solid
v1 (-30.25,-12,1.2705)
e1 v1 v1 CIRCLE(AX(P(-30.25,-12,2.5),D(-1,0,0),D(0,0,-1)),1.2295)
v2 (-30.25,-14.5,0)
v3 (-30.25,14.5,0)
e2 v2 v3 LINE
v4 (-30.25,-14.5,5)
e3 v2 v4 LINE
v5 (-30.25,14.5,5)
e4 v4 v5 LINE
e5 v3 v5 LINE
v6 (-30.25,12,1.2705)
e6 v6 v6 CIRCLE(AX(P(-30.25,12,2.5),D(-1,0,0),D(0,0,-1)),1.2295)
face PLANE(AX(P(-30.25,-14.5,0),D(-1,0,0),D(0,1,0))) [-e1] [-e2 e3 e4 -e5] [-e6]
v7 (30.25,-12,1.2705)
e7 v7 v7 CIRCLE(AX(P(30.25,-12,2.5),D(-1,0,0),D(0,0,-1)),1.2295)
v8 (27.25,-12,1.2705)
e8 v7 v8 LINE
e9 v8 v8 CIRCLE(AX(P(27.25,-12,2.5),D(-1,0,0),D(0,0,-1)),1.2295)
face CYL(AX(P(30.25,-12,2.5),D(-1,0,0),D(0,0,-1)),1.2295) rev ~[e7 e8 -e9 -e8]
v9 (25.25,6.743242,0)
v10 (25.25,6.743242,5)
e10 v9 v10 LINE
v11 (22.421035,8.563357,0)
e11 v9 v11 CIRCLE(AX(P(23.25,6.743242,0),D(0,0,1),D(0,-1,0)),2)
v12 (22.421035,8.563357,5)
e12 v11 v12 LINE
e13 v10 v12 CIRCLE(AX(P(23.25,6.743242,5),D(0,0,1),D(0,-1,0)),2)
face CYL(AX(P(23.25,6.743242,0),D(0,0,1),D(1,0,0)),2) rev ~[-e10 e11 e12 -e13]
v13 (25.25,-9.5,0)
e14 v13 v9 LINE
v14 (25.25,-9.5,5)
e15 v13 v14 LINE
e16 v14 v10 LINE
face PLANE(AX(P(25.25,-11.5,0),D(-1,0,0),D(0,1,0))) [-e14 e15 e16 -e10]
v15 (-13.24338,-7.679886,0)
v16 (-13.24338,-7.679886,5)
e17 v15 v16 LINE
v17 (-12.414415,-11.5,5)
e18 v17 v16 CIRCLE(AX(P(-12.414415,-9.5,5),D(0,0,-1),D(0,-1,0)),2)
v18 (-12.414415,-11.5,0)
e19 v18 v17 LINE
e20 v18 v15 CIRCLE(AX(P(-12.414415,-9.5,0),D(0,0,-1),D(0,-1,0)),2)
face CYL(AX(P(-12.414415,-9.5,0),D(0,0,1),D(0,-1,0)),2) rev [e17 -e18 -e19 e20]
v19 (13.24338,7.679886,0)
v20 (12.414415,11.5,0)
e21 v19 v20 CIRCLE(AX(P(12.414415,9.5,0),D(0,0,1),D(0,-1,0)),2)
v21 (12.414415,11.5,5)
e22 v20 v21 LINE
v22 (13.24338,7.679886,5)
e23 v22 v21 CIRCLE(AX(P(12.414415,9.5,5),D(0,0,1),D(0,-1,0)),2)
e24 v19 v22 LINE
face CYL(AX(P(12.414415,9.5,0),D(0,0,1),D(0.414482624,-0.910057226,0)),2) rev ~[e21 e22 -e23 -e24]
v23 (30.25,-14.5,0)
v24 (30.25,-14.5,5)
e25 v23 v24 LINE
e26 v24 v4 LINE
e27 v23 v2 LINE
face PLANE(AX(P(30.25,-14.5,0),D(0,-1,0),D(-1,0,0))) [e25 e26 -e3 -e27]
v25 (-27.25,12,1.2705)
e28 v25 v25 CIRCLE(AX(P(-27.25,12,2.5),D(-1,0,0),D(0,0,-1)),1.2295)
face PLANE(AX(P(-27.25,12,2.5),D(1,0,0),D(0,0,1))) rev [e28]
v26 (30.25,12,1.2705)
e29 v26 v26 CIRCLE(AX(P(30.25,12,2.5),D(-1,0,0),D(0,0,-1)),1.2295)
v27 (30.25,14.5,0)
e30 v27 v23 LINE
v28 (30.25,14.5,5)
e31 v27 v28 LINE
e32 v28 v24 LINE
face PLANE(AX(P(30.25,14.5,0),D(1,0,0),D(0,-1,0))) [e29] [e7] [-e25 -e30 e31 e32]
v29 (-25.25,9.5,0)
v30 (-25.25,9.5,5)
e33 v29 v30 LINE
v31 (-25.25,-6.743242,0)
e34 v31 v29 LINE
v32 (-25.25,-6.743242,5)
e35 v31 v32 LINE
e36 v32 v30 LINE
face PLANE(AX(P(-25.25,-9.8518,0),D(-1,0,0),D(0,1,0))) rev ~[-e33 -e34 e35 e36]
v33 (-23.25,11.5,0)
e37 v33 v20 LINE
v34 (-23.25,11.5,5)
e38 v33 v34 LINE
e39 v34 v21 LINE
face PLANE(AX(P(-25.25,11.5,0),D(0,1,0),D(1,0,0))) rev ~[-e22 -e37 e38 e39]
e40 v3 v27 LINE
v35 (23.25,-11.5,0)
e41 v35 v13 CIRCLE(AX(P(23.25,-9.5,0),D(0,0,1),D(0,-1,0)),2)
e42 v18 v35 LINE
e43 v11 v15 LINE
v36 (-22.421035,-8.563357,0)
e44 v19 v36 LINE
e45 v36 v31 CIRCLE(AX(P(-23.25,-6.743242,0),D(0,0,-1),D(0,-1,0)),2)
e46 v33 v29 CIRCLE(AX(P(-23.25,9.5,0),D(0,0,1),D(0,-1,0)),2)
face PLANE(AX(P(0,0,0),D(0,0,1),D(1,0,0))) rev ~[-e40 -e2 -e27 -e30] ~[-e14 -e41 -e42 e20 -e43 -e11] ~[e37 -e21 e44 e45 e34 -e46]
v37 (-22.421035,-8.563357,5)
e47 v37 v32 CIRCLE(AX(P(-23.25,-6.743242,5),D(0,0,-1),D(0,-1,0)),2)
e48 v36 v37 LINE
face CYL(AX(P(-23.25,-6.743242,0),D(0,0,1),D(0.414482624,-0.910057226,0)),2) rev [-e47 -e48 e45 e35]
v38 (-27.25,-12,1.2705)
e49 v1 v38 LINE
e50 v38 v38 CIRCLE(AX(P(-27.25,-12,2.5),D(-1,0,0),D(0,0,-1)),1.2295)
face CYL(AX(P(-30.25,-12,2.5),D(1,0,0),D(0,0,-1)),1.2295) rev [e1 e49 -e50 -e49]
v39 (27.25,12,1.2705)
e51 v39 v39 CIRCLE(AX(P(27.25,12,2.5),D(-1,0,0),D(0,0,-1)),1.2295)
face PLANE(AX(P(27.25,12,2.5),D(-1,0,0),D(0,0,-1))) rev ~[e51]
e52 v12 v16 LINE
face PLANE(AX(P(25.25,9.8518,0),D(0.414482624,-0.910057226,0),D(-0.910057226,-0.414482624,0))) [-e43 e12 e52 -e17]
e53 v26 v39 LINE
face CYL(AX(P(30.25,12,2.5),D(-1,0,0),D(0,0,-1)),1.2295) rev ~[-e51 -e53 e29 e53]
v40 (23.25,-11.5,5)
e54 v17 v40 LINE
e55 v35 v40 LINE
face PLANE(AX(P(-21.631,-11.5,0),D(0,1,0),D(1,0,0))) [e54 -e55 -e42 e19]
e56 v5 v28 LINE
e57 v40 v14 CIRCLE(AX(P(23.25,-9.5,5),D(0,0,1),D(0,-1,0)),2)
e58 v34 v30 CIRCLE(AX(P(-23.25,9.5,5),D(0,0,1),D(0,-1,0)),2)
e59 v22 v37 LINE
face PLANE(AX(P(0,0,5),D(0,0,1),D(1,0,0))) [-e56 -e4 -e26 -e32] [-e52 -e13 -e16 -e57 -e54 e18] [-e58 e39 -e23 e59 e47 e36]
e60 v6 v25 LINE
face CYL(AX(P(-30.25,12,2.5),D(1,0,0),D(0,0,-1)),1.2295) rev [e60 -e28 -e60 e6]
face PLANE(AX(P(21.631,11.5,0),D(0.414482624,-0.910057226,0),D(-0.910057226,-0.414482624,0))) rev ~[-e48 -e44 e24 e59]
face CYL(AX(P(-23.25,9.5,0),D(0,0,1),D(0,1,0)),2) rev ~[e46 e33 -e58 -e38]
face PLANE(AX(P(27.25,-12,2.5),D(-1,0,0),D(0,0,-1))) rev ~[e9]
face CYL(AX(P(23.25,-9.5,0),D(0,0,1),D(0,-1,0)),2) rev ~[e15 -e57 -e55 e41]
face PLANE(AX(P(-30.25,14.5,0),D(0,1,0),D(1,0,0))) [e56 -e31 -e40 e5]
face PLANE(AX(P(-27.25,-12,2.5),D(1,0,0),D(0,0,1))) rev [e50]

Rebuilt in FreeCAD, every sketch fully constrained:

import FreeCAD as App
import Part
import Sketcher
from FreeCAD import Vector
Q = App.Units.Quantity


def edges_at(feature, points):
    """Names of the edges that pass closest to the given points."""
    edges = feature.Shape.Edges
    near = lambda p: min(range(len(edges)), key=lambda i: edges[i].distToShape(Part.Vertex(*p))[0])
    return sorted({f"Edge{near(p) + 1}" for p in points})

doc = App.newDocument("Part")
params = doc.addObject("Spreadsheet::Sheet", "Params")
for row, (alias, value) in enumerate([
    ("sketch1_width", "60.5 mm"),
    ("sketch1_height", "29 mm"),
    ("pad1_length", "5 mm"),
    ("hole_diameter", "2.459 mm"),
    ("hole_depth", "3 mm"),
    ("fillet_radius", "2 mm"),
], start=1):
    params.set(f"A{row}", alias)
    params.set(f"B{row}", "=" + value)
    params.setAlias(f"B{row}", alias)

body = doc.addObject("PartDesign::Body", "Body")

# Sketch on XY plane
sketch1 = body.newObject("Sketcher::SketchObject", "Sketch")
sketch1.AttachmentSupport = (doc.getObject("XY_Plane"), [""])
sketch1.MapMode = "FlatFace"
sketch1.addGeometry([
    Part.LineSegment(Vector(30, 14, 0), Vector(-30, 14, 0)),  # 0
    Part.LineSegment(Vector(-30, 14, 0), Vector(-30, -14, 0)),  # 1
    Part.LineSegment(Vector(-30, -14, 0), Vector(30, -14, 0)),  # 2
    Part.LineSegment(Vector(30, -14, 0), Vector(30, 14, 0)),  # 3
    Part.LineSegment(Vector(25, -12, 0), Vector(-22, -12, 0)),  # 4
    Part.LineSegment(Vector(-22, -12, 0), Vector(25, 10, 0)),  # 5
    Part.LineSegment(Vector(25, 10, 0), Vector(25, -12, 0)),  # 6
    Part.LineSegment(Vector(22, 12, 0), Vector(-25, -10, 0)),  # 7
    Part.LineSegment(Vector(-25, -10, 0), Vector(-25, 12, 0)),  # 8
    Part.LineSegment(Vector(-25, 12, 0), Vector(22, 12, 0)),  # 9
], False)
sketch1.addConstraint([
    Sketcher.Constraint("Coincident", 0, 2, 1, 1),
    Sketcher.Constraint("Coincident", 1, 2, 2, 1),
    Sketcher.Constraint("Coincident", 2, 2, 3, 1),
    Sketcher.Constraint("Coincident", 3, 2, 0, 1),
    Sketcher.Constraint("Coincident", 4, 2, 5, 1),
    Sketcher.Constraint("Coincident", 5, 2, 6, 1),
    Sketcher.Constraint("Coincident", 6, 2, 4, 1),
    Sketcher.Constraint("Coincident", 7, 2, 8, 1),
    Sketcher.Constraint("Coincident", 8, 2, 9, 1),
    Sketcher.Constraint("Coincident", 9, 2, 7, 1),
    Sketcher.Constraint("Horizontal", 0),
    Sketcher.Constraint("Vertical", 1),
    Sketcher.Constraint("Horizontal", 2),
    Sketcher.Constraint("Vertical", 3),
    Sketcher.Constraint("Horizontal", 4),
    Sketcher.Constraint("Vertical", 6),
    Sketcher.Constraint("Vertical", 8),
    Sketcher.Constraint("Horizontal", 9),
    Sketcher.Constraint("Symmetric", 0, 2, 2, 2, -1, 1),
    Sketcher.Constraint("Symmetric", 5, 2, 7, 2, -1, 1),
    Sketcher.Constraint("Symmetric", 4, 2, 9, 2, -1, 1),
    Sketcher.Constraint("DistanceX", 0, 2, 0, 1, Q("60.5 mm")),
    Sketcher.Constraint("DistanceY", 1, 2, 4, 2, Q("3 mm")),
    Sketcher.Constraint("DistanceX", 5, 2, 3, 2, Q("5 mm")),
    Sketcher.Constraint("DistanceY", 1, 2, 1, 1, Q("29 mm")),
    Sketcher.Constraint("DistanceX", 4, 2, 4, 1, Q("46.881 mm")),
    Sketcher.Constraint("DistanceY", 6, 2, 6, 1, Q("21.3518 mm")),
])
sketch1.setExpression("Constraints[21]", "Params.sketch1_width")
sketch1.setExpression("Constraints[24]", "Params.sketch1_height")
pad1 = body.newObject("PartDesign::Pad", "Pad")
pad1.Profile = sketch1
pad1.setExpression("Length", "Params.pad1_length")

# Sketch on YZ plane
sketch2 = body.newObject("Sketcher::SketchObject", "Sketch001")
sketch2.AttachmentSupport = (doc.getObject("YZ_Plane"), [""])
sketch2.MapMode = "FlatFace"
sketch2.AttachmentOffset = App.Placement(Vector(0, 0, 30.25), App.Rotation())
sketch2.addGeometry([
    Part.Circle(Vector(-12, 2.5, 0), Vector(0, 0, 1), 1.2),
    Part.Circle(Vector(12, 2.5, 0), Vector(0, 0, 1), 1.2),
], False)
sketch2.addConstraint([
    Sketcher.Constraint("Equal", 0, 1),
    Sketcher.Constraint("Symmetric", 0, 3, 1, 3, -2),
    Sketcher.Constraint("Diameter", 0, Q("2.459 mm")),
    Sketcher.Constraint("DistanceX", 0, 3, -1, 1, Q("12 mm")),
    Sketcher.Constraint("DistanceY", -1, 1, 0, 3, Q("2.5 mm")),
])
doc.recompute()
hole = body.newObject("PartDesign::Hole", "Hole")
hole.Profile = sketch2
hole.ThreadType = "None"
hole.setExpression("Diameter", "Params.hole_diameter")
hole.DepthType = "Dimension"
hole.setExpression("Depth", "Params.hole_depth")
hole.DrillPoint = "Flat"
doc.recompute()

mirrored = body.newObject("PartDesign::Mirrored", "Mirrored")
mirrored.Originals = [hole]
mirrored.MirrorPlane = (doc.getObject("YZ_Plane"), [""])
body.Tip = mirrored
doc.recompute()

fillet = body.newObject("PartDesign::Fillet", "Fillet")
fillet.Base = (mirrored, edges_at(mirrored, [
    (-21.631, -11.5, 2.5),
    (-25.25, -9.852, 2.5),
    (25.25, 9.852, 2.5),
    (25.25, -11.5, 2.5),
    (-25.25, 11.5, 2.5),
    (21.631, 11.5, 2.5),
]))
fillet.setExpression("Radius", "Params.fillet_radius")

doc.recompute()
